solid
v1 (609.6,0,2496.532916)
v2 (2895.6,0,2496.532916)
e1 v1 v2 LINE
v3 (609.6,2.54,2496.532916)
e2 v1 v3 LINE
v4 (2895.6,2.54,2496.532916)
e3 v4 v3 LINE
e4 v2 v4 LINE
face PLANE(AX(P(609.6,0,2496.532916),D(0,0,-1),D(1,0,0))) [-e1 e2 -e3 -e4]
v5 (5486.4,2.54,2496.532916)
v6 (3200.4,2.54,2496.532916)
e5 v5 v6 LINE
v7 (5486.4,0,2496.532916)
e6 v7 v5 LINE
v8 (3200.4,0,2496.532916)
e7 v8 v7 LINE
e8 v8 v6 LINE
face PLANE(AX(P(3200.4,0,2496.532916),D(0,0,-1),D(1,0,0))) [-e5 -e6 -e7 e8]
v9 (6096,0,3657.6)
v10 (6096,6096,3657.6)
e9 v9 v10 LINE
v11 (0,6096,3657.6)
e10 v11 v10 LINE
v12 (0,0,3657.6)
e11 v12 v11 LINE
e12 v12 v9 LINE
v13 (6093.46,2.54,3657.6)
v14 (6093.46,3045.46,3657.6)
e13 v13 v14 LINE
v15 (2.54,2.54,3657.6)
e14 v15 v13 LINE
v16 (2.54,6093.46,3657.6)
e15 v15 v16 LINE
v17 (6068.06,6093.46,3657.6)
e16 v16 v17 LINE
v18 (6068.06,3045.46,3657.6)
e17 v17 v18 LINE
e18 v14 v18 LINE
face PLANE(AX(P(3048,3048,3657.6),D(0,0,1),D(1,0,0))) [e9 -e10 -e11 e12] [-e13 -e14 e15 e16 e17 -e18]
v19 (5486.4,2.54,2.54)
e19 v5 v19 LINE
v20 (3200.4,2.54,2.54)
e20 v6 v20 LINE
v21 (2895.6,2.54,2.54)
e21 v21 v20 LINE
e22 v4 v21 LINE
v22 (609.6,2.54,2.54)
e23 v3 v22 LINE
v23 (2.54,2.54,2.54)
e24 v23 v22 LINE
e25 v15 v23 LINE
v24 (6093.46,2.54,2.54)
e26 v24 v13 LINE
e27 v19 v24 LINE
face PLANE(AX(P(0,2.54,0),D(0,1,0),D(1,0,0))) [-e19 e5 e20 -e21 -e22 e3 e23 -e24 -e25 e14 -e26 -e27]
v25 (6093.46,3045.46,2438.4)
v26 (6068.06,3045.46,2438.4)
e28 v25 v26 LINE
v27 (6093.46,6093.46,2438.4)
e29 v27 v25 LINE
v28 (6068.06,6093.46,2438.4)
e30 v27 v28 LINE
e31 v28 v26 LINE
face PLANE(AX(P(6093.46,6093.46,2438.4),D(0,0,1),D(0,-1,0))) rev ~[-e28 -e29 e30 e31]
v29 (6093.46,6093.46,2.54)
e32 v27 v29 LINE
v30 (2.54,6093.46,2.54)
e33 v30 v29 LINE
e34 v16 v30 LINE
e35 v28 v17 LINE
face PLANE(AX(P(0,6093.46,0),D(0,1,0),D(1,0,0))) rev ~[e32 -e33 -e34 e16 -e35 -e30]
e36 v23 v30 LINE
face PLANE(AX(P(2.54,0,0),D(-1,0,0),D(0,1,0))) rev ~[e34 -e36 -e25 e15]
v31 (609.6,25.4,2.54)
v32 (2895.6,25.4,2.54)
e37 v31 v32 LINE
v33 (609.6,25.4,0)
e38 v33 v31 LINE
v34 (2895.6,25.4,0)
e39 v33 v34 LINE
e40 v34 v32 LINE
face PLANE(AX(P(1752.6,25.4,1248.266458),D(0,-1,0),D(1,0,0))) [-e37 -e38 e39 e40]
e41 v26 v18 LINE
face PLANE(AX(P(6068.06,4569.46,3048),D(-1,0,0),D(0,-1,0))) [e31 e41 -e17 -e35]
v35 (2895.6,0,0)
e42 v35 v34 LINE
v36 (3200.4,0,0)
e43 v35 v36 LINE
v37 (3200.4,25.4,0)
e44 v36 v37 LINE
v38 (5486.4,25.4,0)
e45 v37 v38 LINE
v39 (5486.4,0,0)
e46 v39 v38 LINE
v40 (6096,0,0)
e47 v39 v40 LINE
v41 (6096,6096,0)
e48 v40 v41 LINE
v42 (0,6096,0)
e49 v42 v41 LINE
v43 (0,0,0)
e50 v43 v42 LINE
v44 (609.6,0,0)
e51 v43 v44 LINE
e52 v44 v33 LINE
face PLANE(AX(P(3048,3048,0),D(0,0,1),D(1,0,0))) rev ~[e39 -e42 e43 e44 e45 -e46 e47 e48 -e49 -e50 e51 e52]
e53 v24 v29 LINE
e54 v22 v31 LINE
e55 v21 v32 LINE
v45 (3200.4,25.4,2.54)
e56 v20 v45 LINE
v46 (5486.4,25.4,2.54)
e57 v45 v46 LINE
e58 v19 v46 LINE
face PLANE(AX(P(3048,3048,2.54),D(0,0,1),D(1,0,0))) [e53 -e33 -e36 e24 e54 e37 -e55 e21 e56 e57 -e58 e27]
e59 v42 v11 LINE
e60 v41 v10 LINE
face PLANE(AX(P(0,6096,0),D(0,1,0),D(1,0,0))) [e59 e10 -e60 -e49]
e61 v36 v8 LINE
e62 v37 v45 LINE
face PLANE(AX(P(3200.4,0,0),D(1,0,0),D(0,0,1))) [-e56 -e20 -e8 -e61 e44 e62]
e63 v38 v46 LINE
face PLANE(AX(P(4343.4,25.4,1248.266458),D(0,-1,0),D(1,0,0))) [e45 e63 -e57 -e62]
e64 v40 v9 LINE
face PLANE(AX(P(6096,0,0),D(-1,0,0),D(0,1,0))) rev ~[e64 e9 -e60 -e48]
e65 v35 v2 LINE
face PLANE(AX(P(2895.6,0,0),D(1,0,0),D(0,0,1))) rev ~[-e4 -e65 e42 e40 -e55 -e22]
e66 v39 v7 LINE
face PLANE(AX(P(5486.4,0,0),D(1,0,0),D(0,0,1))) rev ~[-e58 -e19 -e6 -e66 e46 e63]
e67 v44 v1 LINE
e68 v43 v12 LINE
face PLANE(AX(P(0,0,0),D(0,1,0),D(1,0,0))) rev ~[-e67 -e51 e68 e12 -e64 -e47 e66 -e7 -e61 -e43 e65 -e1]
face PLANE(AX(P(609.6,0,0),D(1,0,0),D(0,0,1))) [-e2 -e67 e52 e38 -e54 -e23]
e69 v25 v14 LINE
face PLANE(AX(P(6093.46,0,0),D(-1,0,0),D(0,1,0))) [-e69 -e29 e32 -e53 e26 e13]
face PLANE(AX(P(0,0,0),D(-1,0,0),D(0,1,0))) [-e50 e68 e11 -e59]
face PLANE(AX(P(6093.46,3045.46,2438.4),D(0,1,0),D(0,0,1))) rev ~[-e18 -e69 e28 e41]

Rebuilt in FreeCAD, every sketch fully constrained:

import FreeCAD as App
import Part
import Sketcher

V = App.Vector
Q = App.Units.Quantity


def faces_at(feature, points):
    """Names of the faces that lie closest to the given points."""
    faces = feature.Shape.Faces
    near = lambda p: min(range(len(faces)), key=lambda i: faces[i].distToShape(Part.Vertex(*p))[0])
    return sorted({f"Face{near(p) + 1}" for p in points})


def add_polygon(sketch, points):
    """Adds a closed chain of lines whose ends are joined by coincident constraints."""
    first, n = sketch.GeometryCount, len(points)
    for a, b in zip(points, points[1:] + points[:1]):
        sketch.addGeometry(Part.LineSegment(App.Vector(*a, 0), App.Vector(*b, 0)), False)
    for i in range(n):
        sketch.addConstraint(Sketcher.Constraint("Coincident", first + i, 2, first + (i + 1) % n, 1))

doc = App.newDocument("Part")
params = doc.addObject("Spreadsheet::Sheet", "Params")
for row, (alias, value) in enumerate([
    ("sketch1_width", "240 in"),
    ("pad1_length", "144 in"),
    ("thickness_wall", "0.1 in"),
    ("sketch2_width", "90 in"),
    ("pocket1_length", "1 in"),
    ("sketch3_width", "120 in"),
    ("sketch3_height", "48 in"),
    ("pad2_length", "1 in"),
], start=1):
    params.set(f"A{row}", alias)
    params.set(f"B{row}", "=" + value)
    params.setAlias(f"B{row}", alias)

body = doc.addObject("PartDesign::Body", "Body")

sketch1 = body.newObject("Sketcher::SketchObject", "Sketch")
sketch1.AttachmentSupport = (doc.getObject("XY_Plane"), [""])
sketch1.MapMode = "FlatFace"
add_polygon(sketch1, [(0, 6096), (0, 0), (6096, 0), (6096, 6096)])
sketch1.addConstraint([
    Sketcher.Constraint("Vertical", 0),
    Sketcher.Constraint("Horizontal", 1),
    Sketcher.Constraint("Vertical", 2),
    Sketcher.Constraint("Horizontal", 3),
    Sketcher.Constraint("Coincident", 0, 2, -1, 1),
    Sketcher.Constraint("Equal", 3, 0),
    Sketcher.Constraint("DistanceX", 1, 1, 1, 2, Q("240 in")),
])
sketch1.setExpression("Constraints[10]", "Params.sketch1_width")
pad1 = body.newObject("PartDesign::Pad", "Pad")
pad1.Profile = sketch1
pad1.setExpression("Length", "Params.pad1_length")
doc.recompute()

thickness = body.newObject("PartDesign::Thickness", "Thickness")
thickness.Base = (pad1, faces_at(pad1, [(3048, 3048, 3657.6)]))
thickness.setExpression("Value", "Params.thickness_wall")
thickness.Reversed = True
thickness.Join = "Arc"

sketch2 = body.newObject("Sketcher::SketchObject", "Sketch001")
sketch2.AttachmentSupport = (doc.getObject("XZ_Plane"), [""])
sketch2.MapMode = "FlatFace"
add_polygon(sketch2, [(610, 2497), (610, 0), (2896, 0), (2896, 2497)])
add_polygon(sketch2, [(3200, 2497), (3200, 0), (5486, 0), (5486, 2497)])
sketch2.addConstraint([
    Sketcher.Constraint("Vertical", 0),
    Sketcher.Constraint("Horizontal", 1),
    Sketcher.Constraint("Vertical", 2),
    Sketcher.Constraint("Horizontal", 3),
    Sketcher.Constraint("Vertical", 4),
    Sketcher.Constraint("Horizontal", 5),
    Sketcher.Constraint("Vertical", 6),
    Sketcher.Constraint("Horizontal", 7),
    Sketcher.Constraint("PointOnObject", 0, 2, -1),
    Sketcher.Constraint("PointOnObject", 4, 2, -1),
    Sketcher.Constraint("Horizontal", 3, 2, 6, 2),
    Sketcher.Constraint("Equal", 3, 5),
    Sketcher.Constraint("DistanceX", 1, 1, 1, 2, Q("90 in")),
    Sketcher.Constraint("DistanceX", -1, 1, 0, 2, Q("24 in")),
    Sketcher.Constraint("DistanceX", -1, 1, 4, 2, Q("126 in")),
    Sketcher.Constraint("DistanceY", 0, 2, 0, 1, 2496.532917),
])
sketch2.setExpression("Constraints[20]", "Params.sketch2_width")
pocket1 = body.newObject("PartDesign::Pocket", "Pocket")
pocket1.Profile = sketch2
pocket1.setExpression("Length", "Params.pocket1_length")

sketch3 = body.newObject("Sketcher::SketchObject", "Sketch002")
sketch3.AttachmentSupport = (doc.getObject("YZ_Plane"), [""])
sketch3.MapMode = "FlatFace"
sketch3.AttachmentOffset = App.Placement(V(0, 0, 239.9 * 25.4), App.Rotation())
add_polygon(sketch3, [(6093, 3658), (6093, 2438), (3045, 2438), (3045, 3658)])
sketch3.addConstraint([
    Sketcher.Constraint("Vertical", 0),
    Sketcher.Constraint("Horizontal", 1),
    Sketcher.Constraint("Vertical", 2),
    Sketcher.Constraint("Horizontal", 3),
    Sketcher.Constraint("DistanceX", 1, 2, 1, 1, Q("120 in")),
    Sketcher.Constraint("DistanceY", 0, 2, 0, 1, Q("48 in")),
    Sketcher.Constraint("DistanceY", -1, 1, 0, 2, Q("96 in")),
    Sketcher.Constraint("DistanceX", -1, 1, 0, 2, Q("239.9 in")),
])
sketch3.setExpression("Constraints[8]", "Params.sketch3_width")
sketch3.setExpression("Constraints[9]", "Params.sketch3_height")
pad2 = body.newObject("PartDesign::Pad", "Pad001")
pad2.Profile = sketch3
pad2.setExpression("Length", "Params.pad2_length")
pad2.Reversed = True

doc.recompute()
